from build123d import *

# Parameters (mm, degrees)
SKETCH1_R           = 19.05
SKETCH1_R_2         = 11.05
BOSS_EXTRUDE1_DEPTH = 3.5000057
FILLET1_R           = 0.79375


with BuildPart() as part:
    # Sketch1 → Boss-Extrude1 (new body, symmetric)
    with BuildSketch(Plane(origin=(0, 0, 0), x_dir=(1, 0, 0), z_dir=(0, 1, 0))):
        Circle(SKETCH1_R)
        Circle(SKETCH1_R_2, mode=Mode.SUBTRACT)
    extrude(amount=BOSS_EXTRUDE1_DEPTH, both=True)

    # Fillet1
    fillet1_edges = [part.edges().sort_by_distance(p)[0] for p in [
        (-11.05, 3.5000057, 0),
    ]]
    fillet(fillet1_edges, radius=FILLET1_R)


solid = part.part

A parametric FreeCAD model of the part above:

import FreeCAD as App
import Part
import Sketcher
Q = App.Units.Quantity


def edges_at(feature, points):
    """Names of the edges that pass closest to the given points."""
    edges = feature.Shape.Edges
    near = lambda p: min(range(len(edges)), key=lambda i: edges[i].distToShape(Part.Vertex(*p))[0])
    return sorted({f"Edge{near(p) + 1}" for p in points})

doc = App.newDocument("Part")
body = doc.addObject("PartDesign::Body", "Body")

# Sketch on XZ plane
sketch1 = doc.addObject("Sketcher::SketchObject", "Sketch")
body.addObject(sketch1)
sketch1.AttachmentSupport = (doc.XZ_Plane, [""])
sketch1.MapMode = "FlatFace"
sketch1.addGeometry([
    Part.Circle(App.Vector(0, 0, 0), App.Vector(0, 0, 1), 19),
    Part.Circle(App.Vector(0, 0, 0), App.Vector(0, 0, 1), 11),
], False)
sketch1.addConstraint([
    Sketcher.Constraint("Coincident", 0, 3, -1, 1),
    Sketcher.Constraint("Coincident", 1, 3, -1, 1),
    Sketcher.Constraint("Diameter", 0, Q("1.5 in")),
    Sketcher.Constraint("Diameter", 1, Q("22.1 mm")),
])
pad1 = doc.addObject("PartDesign::Pad", "Pad")
body.addObject(pad1)
pad1.Profile = sketch1
pad1.Length = 7.000011
pad1.Midplane = True
doc.recompute()

fillet = doc.addObject("PartDesign::Fillet", "Fillet")
body.addObject(fillet)
fillet.Base = (pad1, edges_at(pad1, [(-11.05, 3.5, 0)]))
fillet.Radius = Q("0.03125 in")

doc.recompute()
